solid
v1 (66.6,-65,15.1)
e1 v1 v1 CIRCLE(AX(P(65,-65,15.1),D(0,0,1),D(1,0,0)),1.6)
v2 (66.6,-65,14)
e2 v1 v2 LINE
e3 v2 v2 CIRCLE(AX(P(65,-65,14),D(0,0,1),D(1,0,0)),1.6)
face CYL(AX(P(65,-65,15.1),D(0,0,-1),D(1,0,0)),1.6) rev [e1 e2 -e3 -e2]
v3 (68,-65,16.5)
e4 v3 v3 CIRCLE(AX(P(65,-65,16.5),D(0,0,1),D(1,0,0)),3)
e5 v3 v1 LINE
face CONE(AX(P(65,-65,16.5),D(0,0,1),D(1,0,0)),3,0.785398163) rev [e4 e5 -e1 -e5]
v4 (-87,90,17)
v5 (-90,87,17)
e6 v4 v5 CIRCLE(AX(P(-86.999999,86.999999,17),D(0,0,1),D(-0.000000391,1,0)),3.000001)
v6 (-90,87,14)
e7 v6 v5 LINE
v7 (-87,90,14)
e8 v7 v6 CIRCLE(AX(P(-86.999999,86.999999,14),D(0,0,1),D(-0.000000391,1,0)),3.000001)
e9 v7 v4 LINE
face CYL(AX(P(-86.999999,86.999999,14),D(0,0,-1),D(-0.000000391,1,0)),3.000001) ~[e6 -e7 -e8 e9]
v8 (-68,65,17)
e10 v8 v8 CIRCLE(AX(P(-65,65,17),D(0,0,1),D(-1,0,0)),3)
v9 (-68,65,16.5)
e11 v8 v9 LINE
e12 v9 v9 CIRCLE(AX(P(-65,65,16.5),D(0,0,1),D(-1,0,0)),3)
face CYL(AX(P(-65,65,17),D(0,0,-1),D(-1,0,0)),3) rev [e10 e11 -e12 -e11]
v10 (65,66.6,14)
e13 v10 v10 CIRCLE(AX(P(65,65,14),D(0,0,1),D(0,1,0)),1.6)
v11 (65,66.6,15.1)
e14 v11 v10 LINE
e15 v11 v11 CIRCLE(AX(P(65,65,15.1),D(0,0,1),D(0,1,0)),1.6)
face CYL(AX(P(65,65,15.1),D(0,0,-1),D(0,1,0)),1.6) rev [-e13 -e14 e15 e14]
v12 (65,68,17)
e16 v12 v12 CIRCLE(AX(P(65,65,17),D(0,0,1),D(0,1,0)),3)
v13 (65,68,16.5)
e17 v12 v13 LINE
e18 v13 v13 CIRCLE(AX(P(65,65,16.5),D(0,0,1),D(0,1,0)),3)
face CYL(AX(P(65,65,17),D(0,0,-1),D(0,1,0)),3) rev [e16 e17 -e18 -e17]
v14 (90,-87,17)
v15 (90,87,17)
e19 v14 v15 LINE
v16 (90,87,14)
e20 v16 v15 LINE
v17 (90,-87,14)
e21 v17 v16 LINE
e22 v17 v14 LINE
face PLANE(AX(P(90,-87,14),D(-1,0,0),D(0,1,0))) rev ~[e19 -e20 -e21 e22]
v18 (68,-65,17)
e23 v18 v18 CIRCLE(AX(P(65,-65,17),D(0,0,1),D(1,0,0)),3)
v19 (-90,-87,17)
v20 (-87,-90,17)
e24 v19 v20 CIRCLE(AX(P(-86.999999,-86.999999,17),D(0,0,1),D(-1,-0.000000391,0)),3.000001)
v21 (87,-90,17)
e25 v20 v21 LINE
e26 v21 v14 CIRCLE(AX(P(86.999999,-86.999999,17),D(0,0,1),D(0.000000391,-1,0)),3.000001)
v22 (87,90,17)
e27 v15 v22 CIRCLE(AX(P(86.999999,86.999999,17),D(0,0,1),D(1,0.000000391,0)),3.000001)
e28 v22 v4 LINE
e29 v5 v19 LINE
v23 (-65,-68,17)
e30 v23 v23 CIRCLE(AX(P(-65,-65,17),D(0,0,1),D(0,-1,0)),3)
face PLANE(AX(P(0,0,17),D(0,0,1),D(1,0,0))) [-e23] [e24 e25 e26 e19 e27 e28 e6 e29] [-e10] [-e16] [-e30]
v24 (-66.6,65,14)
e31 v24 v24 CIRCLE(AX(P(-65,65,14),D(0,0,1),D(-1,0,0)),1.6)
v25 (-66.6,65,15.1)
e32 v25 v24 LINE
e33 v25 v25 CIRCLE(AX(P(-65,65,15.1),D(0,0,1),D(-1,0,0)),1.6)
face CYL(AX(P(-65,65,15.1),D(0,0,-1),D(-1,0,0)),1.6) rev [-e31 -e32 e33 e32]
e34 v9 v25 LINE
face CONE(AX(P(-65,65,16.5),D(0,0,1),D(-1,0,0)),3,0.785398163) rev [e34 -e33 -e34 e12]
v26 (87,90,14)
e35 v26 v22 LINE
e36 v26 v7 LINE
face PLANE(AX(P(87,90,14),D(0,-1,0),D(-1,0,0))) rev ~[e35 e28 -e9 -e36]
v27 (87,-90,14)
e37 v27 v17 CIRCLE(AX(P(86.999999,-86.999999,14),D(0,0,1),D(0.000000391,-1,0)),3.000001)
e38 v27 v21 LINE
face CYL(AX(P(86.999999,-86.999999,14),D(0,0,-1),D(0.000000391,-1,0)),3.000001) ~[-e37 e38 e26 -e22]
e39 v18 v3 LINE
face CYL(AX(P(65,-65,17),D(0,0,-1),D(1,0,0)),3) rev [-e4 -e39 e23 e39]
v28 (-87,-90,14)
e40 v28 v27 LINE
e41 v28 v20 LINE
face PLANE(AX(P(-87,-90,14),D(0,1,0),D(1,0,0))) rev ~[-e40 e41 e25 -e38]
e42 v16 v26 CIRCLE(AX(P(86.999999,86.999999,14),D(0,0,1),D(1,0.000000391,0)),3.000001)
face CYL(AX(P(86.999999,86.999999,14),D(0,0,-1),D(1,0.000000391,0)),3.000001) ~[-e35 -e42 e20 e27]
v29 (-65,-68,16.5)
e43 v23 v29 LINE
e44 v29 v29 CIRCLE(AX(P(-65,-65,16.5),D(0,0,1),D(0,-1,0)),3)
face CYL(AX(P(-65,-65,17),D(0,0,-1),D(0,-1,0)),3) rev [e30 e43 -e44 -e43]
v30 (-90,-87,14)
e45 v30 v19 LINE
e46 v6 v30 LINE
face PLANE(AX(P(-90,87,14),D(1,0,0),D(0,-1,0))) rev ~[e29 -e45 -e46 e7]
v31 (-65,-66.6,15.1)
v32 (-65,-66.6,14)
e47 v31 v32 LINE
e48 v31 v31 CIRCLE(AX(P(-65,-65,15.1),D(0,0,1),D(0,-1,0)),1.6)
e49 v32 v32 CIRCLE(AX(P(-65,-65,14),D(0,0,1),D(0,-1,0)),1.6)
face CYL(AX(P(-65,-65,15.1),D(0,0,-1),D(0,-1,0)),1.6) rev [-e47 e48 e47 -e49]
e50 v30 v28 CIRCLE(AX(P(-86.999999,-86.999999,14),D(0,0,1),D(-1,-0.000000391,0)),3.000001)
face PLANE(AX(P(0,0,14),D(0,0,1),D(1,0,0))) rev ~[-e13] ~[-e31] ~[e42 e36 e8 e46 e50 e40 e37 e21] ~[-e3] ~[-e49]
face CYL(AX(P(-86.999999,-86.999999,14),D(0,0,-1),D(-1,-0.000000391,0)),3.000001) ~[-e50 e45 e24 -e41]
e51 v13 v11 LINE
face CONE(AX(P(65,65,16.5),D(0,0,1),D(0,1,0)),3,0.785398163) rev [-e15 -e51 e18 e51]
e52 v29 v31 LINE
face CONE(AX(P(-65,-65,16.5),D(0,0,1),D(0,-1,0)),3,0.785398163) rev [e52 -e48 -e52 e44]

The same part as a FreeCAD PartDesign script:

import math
import FreeCAD as App
import Part
import Sketcher

V = App.Vector
Q = App.Units.Quantity


def add_polygon(sketch, points):
    """Adds a closed chain of lines whose ends are joined by coincident constraints."""
    first, n = sketch.GeometryCount, len(points)
    for a, b in zip(points, points[1:] + points[:1]):
        sketch.addGeometry(Part.LineSegment(App.Vector(*a, 0), App.Vector(*b, 0)), False)
    for i in range(n):
        sketch.addConstraint(Sketcher.Constraint("Coincident", first + i, 2, first + (i + 1) % n, 1))

doc = App.newDocument("Part")
params = doc.addObject("Spreadsheet::Sheet", "Params")
for row, (alias, value) in enumerate([
    ("sketch1_radius", "3.000001 mm"),
    ("sketch1_width", "174 mm"),
    ("pad1_length", "3 mm"),
    ("sketch2_width", "3 mm"),
    ("sketch2_width2", "1.6 mm"),
    ("sketch2_height", "1.1 mm"),
    ("groove_angle", "360 deg"),
], start=1):
    params.set(f"A{row}", alias)
    params.set(f"B{row}", "=" + value)
    params.setAlias(f"B{row}", alias)

body = doc.addObject("PartDesign::Body", "Body")

# Sketch on XY plane
sketch1 = body.newObject("Sketcher::SketchObject", "Sketch")
sketch1.AttachmentSupport = (doc.getObject("XY_Plane"), [""])
sketch1.MapMode = "FlatFace"
sketch1.addGeometry(Part.LineSegment(V(-90, 87, 0), V(-90, -87, 0)), False)
sketch1.addGeometry(Part.ArcOfCircle(Part.Circle(V(-87, -87, 0), V(0, 0, 1), 3), math.radians(-180), math.radians(-90)), False)
sketch1.addGeometry(Part.LineSegment(V(-87, -90, 0), V(87, -90, 0)), False)
sketch1.addGeometry(Part.ArcOfCircle(Part.Circle(V(87, -87, 0), V(0, 0, 1), 3), math.radians(-90), math.radians(0)), False)
sketch1.addGeometry(Part.LineSegment(V(90, -87, 0), V(90, 87, 0)), False)
sketch1.addGeometry(Part.ArcOfCircle(Part.Circle(V(87, 87, 0), V(0, 0, 1), 3), math.radians(0), math.radians(90)), False)
sketch1.addGeometry(Part.LineSegment(V(87, 90, 0), V(-87, 90, 0)), False)
sketch1.addGeometry(Part.ArcOfCircle(Part.Circle(V(-87, 87, 0), V(0, 0, 1), 3), math.radians(90), math.radians(180)), False)
sketch1.addConstraint(Sketcher.Constraint("Tangent", 0, 2, 1, 1))
sketch1.addConstraint(Sketcher.Constraint("Tangent", 1, 2, 2, 1))
sketch1.addConstraint(Sketcher.Constraint("Tangent", 2, 2, 3, 1))
sketch1.addConstraint(Sketcher.Constraint("Tangent", 3, 2, 4, 1))
sketch1.addConstraint(Sketcher.Constraint("Tangent", 4, 2, 5, 1))
sketch1.addConstraint(Sketcher.Constraint("Tangent", 5, 2, 6, 1))
sketch1.addConstraint(Sketcher.Constraint("Tangent", 6, 2, 7, 1))
sketch1.addConstraint(Sketcher.Constraint("Tangent", 7, 2, 0, 1))
sketch1.addConstraint(Sketcher.Constraint("Vertical", 0))
sketch1.addConstraint(Sketcher.Constraint("Horizontal", 2))
sketch1.addConstraint(Sketcher.Constraint("Vertical", 4))
sketch1.addConstraint(Sketcher.Constraint("Horizontal", 6))
sketch1.addConstraint(Sketcher.Constraint("Equal", 1, 3))
sketch1.addConstraint(Sketcher.Constraint("Equal", 3, 5))
sketch1.addConstraint(Sketcher.Constraint("Equal", 5, 7))
sketch1.addConstraint(Sketcher.Constraint("Symmetric", 1, 3, 5, 3, -1, 1))
sketch1.addConstraint(Sketcher.Constraint("Equal", 6, 0))
sketch1.addConstraint(Sketcher.Constraint("Radius", 1, Q("3.000001 mm")))
sketch1.addConstraint(Sketcher.Constraint("DistanceX", 2, 1, 2, 2, Q("174 mm")))
sketch1.setExpression("Constraints[17]", "Params.sketch1_radius")
sketch1.setExpression("Constraints[18]", "Params.sketch1_width")
pad1 = body.newObject("PartDesign::Pad", "Pad")
pad1.Profile = sketch1
pad1.setExpression("Length", "Params.pad1_length")

# Sketch on XZ plane
sketch2 = body.newObject("Sketcher::SketchObject", "Sketch001")
sketch2.AttachmentSupport = (doc.getObject("XZ_Plane"), [""])
sketch2.MapMode = "FlatFace"
sketch2.AttachmentOffset = App.Placement(V(0, 0, 65), App.Rotation())
add_polygon(sketch2, [(68, 3), (65, 3), (65, 0), (66.6, 0), (66.6, 1.1), (68, 2.5)])  # lines 0-5
sketch2.addGeometry(Part.LineSegment(V(65, 0, 0), V(65, 3, 0)), True)  # axis
sketch2.addConstraint(Sketcher.Constraint("Horizontal", 0))
sketch2.addConstraint(Sketcher.Constraint("Vertical", 1))
sketch2.addConstraint(Sketcher.Constraint("Horizontal", 2))
sketch2.addConstraint(Sketcher.Constraint("Vertical", 3))
sketch2.addConstraint(Sketcher.Constraint("Vertical", 5))
sketch2.addConstraint(Sketcher.Constraint("Vertical", 6))
sketch2.addConstraint(Sketcher.Constraint("Coincident", 6, 1, 1, 2))
sketch2.addConstraint(Sketcher.Constraint("PointOnObject", 1, 2, -1))
sketch2.addConstraint(Sketcher.Constraint("Horizontal", 5, 2, 6, 2))
sketch2.addConstraint(Sketcher.Constraint("Equal", 0, 1))
sketch2.addConstraint(Sketcher.Constraint("DistanceX", 0, 2, 0, 1, Q("3 mm")))
sketch2.addConstraint(Sketcher.Constraint("Angle", 4, Q("45 deg")))
sketch2.addConstraint(Sketcher.Constraint("DistanceX", 2, 1, 2, 2, Q("1.6 mm")))
sketch2.addConstraint(Sketcher.Constraint("DistanceY", 3, 1, 3, 2, Q("1.1 mm")))
sketch2.addConstraint(Sketcher.Constraint("DistanceX", -1, 1, 0, 2, Q("65 mm")))
sketch2.setExpression("Constraints[16]", "Params.sketch2_width")
sketch2.setExpression("Constraints[18]", "Params.sketch2_width2")
sketch2.setExpression("Constraints[19]", "Params.sketch2_height")
groove = body.newObject("PartDesign::Groove", "Groove")
groove.Profile = sketch2
groove.ReferenceAxis = (sketch2, ["Axis0"])
groove.setExpression("Angle", "Params.groove_angle")
doc.recompute()

polarpattern = body.newObject("PartDesign::PolarPattern", "PolarPattern")
polarpattern.Originals = [groove]
polarpattern.Axis = (doc.getObject("Z_Axis"), [""])
polarpattern.Angle = 360
polarpattern.Occurrences = 4
body.Tip = polarpattern
body2 = doc.addObject("PartDesign::Body", "Body001")
doc.recompute()

body.Placement = App.Placement(V(0, 0, 14), App.Rotation(V(0, 0, 1), 0))
boolean = body2.newObject("PartDesign::Boolean", "Boolean")
boolean.Type = "Fuse"
boolean.addObjects([body])

doc.recompute()
